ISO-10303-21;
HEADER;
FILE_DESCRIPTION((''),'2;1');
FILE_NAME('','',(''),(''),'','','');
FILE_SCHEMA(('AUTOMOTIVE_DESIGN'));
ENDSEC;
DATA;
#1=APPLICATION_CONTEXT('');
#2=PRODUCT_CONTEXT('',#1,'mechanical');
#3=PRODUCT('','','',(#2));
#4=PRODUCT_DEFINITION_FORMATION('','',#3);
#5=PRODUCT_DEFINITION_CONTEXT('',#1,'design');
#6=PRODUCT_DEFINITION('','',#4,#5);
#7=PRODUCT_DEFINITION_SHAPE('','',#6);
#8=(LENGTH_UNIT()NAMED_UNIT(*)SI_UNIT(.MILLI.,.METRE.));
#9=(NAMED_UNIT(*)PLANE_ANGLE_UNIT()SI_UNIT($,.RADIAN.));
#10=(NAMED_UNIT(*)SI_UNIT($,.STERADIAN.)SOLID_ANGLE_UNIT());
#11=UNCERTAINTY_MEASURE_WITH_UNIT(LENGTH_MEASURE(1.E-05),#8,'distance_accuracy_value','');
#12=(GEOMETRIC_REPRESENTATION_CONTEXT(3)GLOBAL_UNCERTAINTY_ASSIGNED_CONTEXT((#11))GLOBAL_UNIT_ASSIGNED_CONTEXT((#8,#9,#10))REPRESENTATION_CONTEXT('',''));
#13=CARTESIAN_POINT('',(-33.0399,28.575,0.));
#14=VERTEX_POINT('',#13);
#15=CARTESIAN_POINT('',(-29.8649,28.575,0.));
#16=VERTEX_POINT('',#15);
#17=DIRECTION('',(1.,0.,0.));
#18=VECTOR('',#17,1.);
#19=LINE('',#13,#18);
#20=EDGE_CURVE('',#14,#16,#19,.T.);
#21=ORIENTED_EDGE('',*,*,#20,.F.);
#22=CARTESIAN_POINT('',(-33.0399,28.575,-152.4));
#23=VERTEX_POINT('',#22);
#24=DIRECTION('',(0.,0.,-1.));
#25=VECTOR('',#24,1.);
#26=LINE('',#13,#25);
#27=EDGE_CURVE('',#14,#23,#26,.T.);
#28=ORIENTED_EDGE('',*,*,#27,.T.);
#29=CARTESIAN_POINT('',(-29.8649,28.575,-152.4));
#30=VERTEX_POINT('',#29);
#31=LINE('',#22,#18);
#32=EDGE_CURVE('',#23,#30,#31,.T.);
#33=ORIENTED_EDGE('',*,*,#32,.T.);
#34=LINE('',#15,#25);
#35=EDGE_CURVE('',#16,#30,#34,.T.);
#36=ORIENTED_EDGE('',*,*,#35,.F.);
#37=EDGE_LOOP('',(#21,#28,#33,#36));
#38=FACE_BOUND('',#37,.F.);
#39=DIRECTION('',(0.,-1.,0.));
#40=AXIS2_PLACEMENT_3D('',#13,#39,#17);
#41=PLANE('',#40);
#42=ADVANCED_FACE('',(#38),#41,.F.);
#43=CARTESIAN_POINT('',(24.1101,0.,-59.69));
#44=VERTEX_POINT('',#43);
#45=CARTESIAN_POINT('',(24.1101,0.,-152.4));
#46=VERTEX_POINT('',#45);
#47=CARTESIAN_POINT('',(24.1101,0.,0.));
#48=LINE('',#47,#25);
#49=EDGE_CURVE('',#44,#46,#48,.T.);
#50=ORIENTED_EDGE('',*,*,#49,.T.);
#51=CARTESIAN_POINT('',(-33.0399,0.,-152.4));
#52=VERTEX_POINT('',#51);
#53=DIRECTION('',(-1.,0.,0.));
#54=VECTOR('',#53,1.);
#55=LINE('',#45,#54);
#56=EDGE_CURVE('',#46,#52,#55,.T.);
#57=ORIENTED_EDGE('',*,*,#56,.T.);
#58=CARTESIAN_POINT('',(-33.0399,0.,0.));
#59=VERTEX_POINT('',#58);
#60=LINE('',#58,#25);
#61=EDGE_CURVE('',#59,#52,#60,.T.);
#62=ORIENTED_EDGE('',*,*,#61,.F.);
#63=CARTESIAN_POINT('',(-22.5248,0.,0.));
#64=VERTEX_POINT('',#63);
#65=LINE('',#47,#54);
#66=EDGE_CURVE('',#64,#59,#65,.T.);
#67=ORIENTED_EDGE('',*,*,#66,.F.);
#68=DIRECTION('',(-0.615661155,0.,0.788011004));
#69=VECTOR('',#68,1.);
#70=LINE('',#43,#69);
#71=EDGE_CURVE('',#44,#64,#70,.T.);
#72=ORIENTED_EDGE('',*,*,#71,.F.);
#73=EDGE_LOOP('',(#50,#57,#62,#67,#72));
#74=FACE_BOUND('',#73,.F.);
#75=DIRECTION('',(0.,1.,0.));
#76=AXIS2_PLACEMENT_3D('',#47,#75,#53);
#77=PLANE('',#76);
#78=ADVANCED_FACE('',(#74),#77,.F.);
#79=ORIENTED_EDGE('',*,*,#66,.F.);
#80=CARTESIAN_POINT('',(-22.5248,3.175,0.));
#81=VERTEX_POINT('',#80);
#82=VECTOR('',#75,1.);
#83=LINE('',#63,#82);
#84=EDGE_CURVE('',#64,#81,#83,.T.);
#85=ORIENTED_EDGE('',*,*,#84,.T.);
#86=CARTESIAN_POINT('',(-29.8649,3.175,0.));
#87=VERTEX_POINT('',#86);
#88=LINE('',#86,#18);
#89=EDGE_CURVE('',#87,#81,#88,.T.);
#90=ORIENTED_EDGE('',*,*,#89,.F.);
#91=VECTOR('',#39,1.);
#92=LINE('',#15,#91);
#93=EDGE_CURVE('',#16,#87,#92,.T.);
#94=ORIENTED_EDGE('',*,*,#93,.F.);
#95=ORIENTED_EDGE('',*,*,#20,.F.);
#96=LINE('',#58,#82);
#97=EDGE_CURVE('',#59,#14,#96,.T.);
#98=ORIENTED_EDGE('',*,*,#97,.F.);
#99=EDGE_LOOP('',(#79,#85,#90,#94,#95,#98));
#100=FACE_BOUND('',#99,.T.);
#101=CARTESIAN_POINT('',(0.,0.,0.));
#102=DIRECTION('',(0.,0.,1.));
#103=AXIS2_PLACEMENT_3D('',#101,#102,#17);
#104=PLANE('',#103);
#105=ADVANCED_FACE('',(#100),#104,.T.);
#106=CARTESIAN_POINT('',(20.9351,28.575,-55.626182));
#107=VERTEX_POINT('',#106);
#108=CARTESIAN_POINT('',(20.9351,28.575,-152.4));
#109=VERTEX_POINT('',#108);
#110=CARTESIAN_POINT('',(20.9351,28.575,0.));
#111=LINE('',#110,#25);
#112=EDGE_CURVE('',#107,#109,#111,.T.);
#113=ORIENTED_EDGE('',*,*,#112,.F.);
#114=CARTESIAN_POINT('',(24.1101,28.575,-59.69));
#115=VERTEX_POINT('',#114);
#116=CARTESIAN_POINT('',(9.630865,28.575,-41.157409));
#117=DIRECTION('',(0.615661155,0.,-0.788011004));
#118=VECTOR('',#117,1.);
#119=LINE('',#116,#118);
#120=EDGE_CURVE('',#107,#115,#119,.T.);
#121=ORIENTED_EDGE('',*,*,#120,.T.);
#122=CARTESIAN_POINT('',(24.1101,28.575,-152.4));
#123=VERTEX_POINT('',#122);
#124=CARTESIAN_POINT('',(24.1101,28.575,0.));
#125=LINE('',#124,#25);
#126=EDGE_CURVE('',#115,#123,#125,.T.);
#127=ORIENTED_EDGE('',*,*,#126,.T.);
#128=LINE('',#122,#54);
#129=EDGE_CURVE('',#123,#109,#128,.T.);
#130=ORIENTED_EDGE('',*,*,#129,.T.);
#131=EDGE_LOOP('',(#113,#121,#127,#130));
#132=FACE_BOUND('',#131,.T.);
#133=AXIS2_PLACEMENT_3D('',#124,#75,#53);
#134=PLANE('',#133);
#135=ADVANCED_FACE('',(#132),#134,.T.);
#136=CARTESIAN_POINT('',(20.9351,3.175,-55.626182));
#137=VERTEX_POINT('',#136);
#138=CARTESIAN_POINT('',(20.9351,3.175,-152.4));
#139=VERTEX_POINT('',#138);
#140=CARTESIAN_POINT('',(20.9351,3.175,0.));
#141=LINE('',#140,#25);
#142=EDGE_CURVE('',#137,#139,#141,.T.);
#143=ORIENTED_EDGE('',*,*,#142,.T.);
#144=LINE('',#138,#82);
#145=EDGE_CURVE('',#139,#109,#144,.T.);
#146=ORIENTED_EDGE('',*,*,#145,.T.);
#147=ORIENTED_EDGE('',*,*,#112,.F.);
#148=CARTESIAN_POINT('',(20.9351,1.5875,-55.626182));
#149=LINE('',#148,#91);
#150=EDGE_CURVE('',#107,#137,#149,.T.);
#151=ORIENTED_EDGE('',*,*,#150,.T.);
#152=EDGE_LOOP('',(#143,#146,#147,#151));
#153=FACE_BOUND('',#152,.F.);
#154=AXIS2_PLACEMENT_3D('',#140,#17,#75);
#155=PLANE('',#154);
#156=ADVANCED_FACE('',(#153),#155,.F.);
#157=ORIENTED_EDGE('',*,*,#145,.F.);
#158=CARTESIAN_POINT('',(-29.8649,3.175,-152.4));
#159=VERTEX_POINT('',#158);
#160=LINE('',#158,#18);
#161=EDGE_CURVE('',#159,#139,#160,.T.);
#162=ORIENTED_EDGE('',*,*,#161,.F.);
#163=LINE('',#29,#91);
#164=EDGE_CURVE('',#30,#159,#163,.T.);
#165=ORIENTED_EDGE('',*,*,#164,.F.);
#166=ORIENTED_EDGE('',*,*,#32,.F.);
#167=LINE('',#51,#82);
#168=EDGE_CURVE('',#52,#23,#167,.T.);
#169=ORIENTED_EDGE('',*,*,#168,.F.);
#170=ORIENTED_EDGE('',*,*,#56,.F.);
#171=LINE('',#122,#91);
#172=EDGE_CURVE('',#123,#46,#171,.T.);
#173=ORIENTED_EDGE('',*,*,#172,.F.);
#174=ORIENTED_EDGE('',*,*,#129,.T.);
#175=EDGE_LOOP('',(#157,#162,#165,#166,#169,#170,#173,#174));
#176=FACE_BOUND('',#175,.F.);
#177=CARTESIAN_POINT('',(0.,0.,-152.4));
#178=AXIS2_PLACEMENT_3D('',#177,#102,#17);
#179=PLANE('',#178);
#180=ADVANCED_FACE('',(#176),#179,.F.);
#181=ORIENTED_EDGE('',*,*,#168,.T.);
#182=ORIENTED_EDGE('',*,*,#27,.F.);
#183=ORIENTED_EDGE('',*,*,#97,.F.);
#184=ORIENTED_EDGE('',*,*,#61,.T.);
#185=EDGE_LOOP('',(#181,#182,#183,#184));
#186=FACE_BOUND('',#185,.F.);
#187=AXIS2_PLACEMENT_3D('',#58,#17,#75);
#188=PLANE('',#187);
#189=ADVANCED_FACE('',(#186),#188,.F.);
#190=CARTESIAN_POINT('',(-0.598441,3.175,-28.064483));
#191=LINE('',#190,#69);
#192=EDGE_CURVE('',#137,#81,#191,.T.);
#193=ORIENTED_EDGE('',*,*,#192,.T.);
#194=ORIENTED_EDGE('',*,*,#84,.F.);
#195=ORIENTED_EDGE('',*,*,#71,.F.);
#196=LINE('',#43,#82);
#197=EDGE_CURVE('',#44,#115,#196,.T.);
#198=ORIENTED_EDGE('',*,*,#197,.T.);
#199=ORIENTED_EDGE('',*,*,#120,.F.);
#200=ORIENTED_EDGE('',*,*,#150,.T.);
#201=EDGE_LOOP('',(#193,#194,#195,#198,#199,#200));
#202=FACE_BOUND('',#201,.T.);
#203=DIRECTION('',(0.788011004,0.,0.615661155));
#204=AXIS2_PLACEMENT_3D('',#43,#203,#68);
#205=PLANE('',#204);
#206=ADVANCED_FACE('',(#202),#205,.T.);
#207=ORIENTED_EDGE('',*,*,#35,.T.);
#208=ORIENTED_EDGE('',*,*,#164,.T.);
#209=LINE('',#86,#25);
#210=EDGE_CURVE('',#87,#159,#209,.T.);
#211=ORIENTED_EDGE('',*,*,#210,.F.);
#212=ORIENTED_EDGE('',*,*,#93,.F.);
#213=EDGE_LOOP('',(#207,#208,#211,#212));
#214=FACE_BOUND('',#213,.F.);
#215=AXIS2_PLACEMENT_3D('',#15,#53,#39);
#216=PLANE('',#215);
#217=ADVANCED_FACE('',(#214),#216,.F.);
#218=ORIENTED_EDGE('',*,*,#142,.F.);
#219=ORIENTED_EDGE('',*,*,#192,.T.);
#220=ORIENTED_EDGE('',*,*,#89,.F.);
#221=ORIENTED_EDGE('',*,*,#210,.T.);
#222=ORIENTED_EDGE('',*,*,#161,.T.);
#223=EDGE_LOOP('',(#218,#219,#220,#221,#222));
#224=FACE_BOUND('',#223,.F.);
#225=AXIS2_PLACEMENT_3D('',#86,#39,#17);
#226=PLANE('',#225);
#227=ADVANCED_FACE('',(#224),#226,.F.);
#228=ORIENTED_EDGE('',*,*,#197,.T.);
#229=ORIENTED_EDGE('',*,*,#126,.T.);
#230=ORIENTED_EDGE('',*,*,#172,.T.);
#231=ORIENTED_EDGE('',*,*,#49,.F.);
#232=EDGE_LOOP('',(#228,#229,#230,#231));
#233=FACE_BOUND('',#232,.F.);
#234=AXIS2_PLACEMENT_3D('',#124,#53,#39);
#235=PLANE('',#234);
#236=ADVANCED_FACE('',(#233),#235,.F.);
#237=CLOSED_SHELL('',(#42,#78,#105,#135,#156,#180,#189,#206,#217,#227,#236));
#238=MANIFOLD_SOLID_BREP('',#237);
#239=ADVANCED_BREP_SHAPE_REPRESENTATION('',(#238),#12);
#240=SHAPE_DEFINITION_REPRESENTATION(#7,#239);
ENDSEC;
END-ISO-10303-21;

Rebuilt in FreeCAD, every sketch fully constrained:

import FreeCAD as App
import Part
import Sketcher

V = App.Vector
Q = App.Units.Quantity


def add_polygon(sketch, points):
    """Adds a closed chain of lines whose ends are joined by coincident constraints."""
    first, n = sketch.GeometryCount, len(points)
    for a, b in zip(points, points[1:] + points[:1]):
        sketch.addGeometry(Part.LineSegment(App.Vector(*a, 0), App.Vector(*b, 0)), False)
    for i in range(n):
        sketch.addConstraint(Sketcher.Constraint("Coincident", first + i, 2, first + (i + 1) % n, 1))

doc = App.newDocument("Part")
body = doc.addObject("PartDesign::Body", "Body")

sketch1 = doc.addObject("Sketcher::SketchObject", "Sketch")
body.addObject(sketch1)
sketch1.AttachmentSupport = (doc.XY_Plane, [""])
sketch1.MapMode = "FlatFace"
add_polygon(sketch1, [(24.1, 0), (24.1, 28.6), (20.9, 28.6), (20.9, 3.2), (-29.9, 3.2), (-29.9, 28.6), (-33, 28.6), (-33, 0)])
sketch1.addConstraint([
    Sketcher.Constraint("Vertical", 0),
    Sketcher.Constraint("Horizontal", 1),
    Sketcher.Constraint("Vertical", 2),
    Sketcher.Constraint("Horizontal", 3),
    Sketcher.Constraint("Vertical", 4),
    Sketcher.Constraint("Horizontal", 5),
    Sketcher.Constraint("Vertical", 6),
    Sketcher.Constraint("Horizontal", 7),
    Sketcher.Constraint("PointOnObject", 6, 2, -1),
    Sketcher.Constraint("Horizontal", 1, 2, 4, 2),
    Sketcher.Constraint("Equal", 1, 5),
    Sketcher.Constraint("DistanceX", 7, 1, 7, 2, Q("2.25 in")),
    Sketcher.Constraint("DistanceX", 1, 2, 1, 1, Q("0.125 in")),
    Sketcher.Constraint("DistanceY", 0, 1, 0, 2, Q("1.125 in")),
    Sketcher.Constraint("DistanceY", 2, 2, 2, 1, Q("1 in")),
    Sketcher.Constraint("DistanceX", -1, 1, 0, 2, Q("24.11 mm")),
])
pad1 = doc.addObject("PartDesign::Pad", "Pad")
body.addObject(pad1)
pad1.Profile = sketch1
pad1.Length = Q("6 in")
pad1.Reversed = True

sketch2 = doc.addObject("Sketcher::SketchObject", "Sketch001")
body.addObject(sketch2)
sketch2.AttachmentSupport = (doc.XZ_Plane, [""])
sketch2.MapMode = "FlatFace"
add_polygon(sketch2, [(24, 0), (-23, 0), (24, -60)])
sketch2.addConstraint([
    Sketcher.Constraint("Horizontal", 0),
    Sketcher.Constraint("Vertical", 2),
    Sketcher.Constraint("PointOnObject", 0, 2, -1),
    Sketcher.Constraint("Angle", 1, Q("-52 deg")),
    Sketcher.Constraint("DistanceY", 2, 1, 2, 2, Q("2.35 in")),
    Sketcher.Constraint("DistanceX", 0, 2, -1, 1, Q("0.8868 in")),
])
pocket1 = doc.addObject("PartDesign::Pocket", "Pocket")
body.addObject(pocket1)
pocket1.Profile = sketch2
pocket1.Type = "ThroughAll"

doc.recompute()
